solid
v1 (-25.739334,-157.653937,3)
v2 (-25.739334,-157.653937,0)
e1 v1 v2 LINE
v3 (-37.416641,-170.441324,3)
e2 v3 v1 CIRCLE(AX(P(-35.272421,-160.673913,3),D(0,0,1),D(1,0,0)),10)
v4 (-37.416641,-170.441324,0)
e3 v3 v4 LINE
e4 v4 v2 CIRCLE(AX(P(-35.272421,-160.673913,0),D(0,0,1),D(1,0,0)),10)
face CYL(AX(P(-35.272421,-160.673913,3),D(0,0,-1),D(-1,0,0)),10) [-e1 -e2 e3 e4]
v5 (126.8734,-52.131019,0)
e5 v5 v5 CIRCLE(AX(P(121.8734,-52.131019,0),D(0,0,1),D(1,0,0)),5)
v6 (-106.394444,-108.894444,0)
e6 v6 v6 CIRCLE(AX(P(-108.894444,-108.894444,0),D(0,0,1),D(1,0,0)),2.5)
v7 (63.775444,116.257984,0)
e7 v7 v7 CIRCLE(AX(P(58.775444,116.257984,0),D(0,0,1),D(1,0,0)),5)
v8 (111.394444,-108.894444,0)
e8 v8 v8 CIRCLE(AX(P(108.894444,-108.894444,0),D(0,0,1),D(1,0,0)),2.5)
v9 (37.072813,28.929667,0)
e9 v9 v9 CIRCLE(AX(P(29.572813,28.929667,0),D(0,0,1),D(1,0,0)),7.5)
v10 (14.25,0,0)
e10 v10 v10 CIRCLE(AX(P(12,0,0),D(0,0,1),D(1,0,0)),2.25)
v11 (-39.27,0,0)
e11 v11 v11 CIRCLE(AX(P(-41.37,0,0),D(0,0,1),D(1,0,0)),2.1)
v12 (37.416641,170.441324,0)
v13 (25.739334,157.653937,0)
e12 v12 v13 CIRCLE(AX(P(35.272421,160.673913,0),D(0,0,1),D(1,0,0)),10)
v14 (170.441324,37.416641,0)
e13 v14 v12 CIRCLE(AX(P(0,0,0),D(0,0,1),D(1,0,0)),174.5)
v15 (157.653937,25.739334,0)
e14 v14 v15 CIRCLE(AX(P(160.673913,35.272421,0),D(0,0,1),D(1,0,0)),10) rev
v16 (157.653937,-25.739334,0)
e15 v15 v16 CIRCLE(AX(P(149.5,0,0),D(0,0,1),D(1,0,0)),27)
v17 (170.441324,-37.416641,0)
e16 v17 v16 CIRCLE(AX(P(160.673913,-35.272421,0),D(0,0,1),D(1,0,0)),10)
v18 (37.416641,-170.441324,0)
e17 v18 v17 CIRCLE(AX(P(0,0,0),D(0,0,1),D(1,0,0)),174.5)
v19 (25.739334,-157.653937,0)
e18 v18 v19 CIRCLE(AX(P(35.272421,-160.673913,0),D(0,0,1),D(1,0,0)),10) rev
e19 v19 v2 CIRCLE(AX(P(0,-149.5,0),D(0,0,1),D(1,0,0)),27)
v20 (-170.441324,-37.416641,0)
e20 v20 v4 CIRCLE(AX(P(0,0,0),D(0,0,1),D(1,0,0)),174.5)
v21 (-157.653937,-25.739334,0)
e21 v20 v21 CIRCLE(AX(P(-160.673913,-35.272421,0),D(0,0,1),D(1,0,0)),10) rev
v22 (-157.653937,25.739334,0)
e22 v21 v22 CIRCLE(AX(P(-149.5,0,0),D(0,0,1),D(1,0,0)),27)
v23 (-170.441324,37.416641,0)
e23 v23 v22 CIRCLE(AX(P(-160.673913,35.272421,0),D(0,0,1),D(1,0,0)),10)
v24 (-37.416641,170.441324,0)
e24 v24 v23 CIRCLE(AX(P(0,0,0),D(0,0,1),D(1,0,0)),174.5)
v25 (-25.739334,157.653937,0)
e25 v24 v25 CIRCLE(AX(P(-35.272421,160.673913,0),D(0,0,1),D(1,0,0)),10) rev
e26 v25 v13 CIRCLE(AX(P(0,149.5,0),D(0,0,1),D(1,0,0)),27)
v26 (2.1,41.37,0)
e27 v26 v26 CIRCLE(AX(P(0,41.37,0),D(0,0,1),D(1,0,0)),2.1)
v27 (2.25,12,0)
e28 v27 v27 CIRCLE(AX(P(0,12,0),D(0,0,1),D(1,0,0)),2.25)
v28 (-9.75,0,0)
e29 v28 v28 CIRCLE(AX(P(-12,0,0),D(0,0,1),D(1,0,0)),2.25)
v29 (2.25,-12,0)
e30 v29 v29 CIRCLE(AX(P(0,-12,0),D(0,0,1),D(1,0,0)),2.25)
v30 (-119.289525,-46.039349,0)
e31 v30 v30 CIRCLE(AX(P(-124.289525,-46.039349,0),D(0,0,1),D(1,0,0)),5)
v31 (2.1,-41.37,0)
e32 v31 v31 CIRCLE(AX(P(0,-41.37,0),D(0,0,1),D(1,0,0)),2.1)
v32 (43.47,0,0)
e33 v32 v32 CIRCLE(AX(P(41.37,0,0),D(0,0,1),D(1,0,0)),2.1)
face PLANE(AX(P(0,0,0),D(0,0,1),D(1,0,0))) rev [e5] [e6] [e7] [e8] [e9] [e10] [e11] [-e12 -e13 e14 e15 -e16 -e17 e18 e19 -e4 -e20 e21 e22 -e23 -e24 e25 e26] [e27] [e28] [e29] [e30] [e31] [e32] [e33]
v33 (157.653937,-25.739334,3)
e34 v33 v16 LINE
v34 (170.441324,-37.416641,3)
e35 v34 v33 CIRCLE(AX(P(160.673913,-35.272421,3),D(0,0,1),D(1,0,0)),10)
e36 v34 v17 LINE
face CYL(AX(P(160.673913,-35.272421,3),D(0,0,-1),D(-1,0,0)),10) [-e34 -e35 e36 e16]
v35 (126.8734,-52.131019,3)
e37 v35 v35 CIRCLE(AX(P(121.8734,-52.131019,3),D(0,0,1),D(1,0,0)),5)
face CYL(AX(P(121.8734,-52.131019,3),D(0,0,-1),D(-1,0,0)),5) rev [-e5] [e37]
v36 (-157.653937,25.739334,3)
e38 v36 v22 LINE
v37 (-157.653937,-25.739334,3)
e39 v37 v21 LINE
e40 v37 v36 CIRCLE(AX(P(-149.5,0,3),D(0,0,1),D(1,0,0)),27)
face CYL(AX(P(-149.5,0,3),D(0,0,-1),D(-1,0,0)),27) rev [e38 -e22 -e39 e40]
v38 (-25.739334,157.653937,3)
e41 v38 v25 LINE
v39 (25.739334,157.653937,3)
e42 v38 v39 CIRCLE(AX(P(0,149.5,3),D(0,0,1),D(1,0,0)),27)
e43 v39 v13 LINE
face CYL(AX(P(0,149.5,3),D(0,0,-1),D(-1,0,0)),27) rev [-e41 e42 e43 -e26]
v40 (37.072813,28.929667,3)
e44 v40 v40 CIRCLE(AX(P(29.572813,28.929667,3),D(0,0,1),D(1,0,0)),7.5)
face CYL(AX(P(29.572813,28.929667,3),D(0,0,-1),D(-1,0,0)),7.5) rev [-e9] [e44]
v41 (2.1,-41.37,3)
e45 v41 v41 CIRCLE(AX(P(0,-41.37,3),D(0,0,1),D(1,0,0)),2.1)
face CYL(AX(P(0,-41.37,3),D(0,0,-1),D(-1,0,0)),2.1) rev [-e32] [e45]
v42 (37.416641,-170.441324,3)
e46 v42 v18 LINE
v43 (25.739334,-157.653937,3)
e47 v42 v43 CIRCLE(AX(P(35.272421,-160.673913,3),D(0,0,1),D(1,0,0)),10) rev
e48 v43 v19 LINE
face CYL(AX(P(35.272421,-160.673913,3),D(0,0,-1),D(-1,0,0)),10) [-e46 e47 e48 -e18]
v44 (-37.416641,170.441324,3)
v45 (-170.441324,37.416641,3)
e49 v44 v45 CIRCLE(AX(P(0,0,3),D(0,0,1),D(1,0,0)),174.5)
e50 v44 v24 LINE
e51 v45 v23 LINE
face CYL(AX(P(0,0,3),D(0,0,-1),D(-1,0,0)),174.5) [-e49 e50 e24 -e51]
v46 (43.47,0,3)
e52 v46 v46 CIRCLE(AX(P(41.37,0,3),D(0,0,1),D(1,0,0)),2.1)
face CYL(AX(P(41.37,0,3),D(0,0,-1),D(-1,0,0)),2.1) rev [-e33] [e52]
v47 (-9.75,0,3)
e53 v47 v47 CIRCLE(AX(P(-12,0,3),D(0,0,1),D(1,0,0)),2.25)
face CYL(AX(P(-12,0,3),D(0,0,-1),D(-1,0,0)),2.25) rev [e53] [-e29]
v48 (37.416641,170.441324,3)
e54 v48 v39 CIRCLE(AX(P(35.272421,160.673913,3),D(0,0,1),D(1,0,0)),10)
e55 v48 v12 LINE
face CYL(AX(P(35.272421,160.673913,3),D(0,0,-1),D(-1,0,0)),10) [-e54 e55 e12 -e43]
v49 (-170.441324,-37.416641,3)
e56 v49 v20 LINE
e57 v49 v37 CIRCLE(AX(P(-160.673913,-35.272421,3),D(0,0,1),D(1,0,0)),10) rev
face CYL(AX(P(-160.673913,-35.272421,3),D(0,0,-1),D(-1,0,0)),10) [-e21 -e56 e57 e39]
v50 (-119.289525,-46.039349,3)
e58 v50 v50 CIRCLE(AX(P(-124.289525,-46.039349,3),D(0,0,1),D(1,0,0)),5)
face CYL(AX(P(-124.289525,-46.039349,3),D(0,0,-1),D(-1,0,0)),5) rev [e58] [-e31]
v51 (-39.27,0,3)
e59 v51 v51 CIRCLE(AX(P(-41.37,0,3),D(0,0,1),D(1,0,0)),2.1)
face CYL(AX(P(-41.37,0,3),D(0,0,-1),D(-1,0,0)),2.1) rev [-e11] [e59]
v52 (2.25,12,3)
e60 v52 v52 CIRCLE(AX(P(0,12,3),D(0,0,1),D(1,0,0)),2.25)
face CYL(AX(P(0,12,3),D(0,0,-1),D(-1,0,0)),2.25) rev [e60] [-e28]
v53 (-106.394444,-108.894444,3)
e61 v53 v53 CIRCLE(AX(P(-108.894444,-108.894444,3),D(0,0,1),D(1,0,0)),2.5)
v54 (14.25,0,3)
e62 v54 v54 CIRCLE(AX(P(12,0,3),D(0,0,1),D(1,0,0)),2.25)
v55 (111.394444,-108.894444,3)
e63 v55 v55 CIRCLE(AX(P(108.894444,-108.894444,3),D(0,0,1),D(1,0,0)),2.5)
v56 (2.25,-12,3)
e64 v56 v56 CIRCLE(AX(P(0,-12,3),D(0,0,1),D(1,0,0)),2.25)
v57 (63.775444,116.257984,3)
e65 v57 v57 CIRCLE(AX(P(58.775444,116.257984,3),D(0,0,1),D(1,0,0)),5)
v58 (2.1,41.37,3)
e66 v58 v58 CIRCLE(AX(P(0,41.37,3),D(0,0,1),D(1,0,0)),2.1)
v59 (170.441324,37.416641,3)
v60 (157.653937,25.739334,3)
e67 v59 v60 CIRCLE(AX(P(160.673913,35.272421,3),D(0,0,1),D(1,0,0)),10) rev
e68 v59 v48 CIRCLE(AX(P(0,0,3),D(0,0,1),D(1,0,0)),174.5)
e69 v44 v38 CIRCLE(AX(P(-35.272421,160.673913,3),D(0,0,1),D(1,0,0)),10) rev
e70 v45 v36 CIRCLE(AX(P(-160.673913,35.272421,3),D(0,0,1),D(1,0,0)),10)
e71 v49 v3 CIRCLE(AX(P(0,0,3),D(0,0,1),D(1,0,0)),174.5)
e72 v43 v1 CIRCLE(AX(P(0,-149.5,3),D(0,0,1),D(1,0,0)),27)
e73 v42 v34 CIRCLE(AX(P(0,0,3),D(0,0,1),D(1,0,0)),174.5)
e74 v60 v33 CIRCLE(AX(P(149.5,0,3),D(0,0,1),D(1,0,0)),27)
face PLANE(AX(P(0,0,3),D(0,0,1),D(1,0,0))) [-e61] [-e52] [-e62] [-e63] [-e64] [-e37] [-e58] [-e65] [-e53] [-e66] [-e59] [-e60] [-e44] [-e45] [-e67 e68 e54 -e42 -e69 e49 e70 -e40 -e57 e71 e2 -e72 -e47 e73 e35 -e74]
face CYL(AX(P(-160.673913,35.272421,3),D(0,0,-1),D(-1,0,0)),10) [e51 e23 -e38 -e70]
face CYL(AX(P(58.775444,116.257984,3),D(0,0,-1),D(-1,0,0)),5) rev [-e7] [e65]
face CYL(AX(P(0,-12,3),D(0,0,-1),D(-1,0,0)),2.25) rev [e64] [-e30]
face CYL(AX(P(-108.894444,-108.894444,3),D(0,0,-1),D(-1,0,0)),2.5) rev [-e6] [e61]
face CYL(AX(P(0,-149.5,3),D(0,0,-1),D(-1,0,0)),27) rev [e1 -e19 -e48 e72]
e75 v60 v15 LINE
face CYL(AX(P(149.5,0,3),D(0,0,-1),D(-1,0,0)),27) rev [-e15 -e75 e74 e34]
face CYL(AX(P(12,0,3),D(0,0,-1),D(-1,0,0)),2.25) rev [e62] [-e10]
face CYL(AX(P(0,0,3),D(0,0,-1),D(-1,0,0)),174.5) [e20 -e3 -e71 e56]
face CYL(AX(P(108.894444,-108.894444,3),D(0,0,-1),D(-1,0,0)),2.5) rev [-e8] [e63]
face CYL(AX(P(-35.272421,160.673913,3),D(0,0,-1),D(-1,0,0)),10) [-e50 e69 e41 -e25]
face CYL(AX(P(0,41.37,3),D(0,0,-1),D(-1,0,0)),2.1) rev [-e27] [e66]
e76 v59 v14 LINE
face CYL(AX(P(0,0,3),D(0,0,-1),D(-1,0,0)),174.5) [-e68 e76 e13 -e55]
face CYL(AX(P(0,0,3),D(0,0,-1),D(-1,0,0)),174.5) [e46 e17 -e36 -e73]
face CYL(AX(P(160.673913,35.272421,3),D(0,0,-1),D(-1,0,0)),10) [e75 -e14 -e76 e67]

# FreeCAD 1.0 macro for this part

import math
import FreeCAD as App
import Part
import Sketcher

V = App.Vector
Q = App.Units.Quantity

doc = App.newDocument("Part")
body = doc.addObject("PartDesign::Body", "Body")

sketch1 = body.newObject("Sketcher::SketchObject", "Sketch")
sketch1.AttachmentSupport = (doc.getObject("XY_Plane"), [""])
sketch1.MapMode = "FlatFace"
sketch1.addGeometry(Part.ArcOfCircle(Part.Circle(V(-160.7, -35.3, 0), V(0, 0, 1), 10), math.radians(72), math.radians(192)), False)
sketch1.addGeometry(Part.ArcOfCircle(Part.Circle(V(0, 0, 0), V(0, 0, 1), 174.5), math.radians(-168), math.radians(-102)), False)
sketch1.addGeometry(Part.ArcOfCircle(Part.Circle(V(-35.3, -160.7, 0), V(0, 0, 1), 10), math.radians(-102), math.radians(18)), False)
sketch1.addGeometry(Part.ArcOfCircle(Part.Circle(V(0, -149.5, 0), V(0, 0, 1), 27), math.radians(-18), math.radians(198)), False)
sketch1.addGeometry(Part.ArcOfCircle(Part.Circle(V(35.3, -160.7, 0), V(0, 0, 1), 10), math.radians(162), math.radians(282)), False)
sketch1.addGeometry(Part.ArcOfCircle(Part.Circle(V(0, 0, 0), V(0, 0, 1), 174.5), math.radians(-78), math.radians(-12)), False)
sketch1.addGeometry(Part.ArcOfCircle(Part.Circle(V(160.7, -35.3, 0), V(0, 0, 1), 10), math.radians(-12), math.radians(108)), False)
sketch1.addGeometry(Part.ArcOfCircle(Part.Circle(V(149.5, 0, 0), V(0, 0, 1), 27), math.radians(72), math.radians(288)), False)
sketch1.addGeometry(Part.ArcOfCircle(Part.Circle(V(160.7, 35.3, 0), V(0, 0, 1), 10), math.radians(-108), math.radians(12)), False)
sketch1.addGeometry(Part.ArcOfCircle(Part.Circle(V(0, 0, 0), V(0, 0, 1), 174.5), math.radians(12), math.radians(78)), False)
sketch1.addGeometry(Part.ArcOfCircle(Part.Circle(V(35.3, 160.7, 0), V(0, 0, 1), 10), math.radians(78), math.radians(198)), False)
sketch1.addGeometry(Part.ArcOfCircle(Part.Circle(V(0, 149.5, 0), V(0, 0, 1), 27), math.radians(162), math.radians(378)), False)
sketch1.addGeometry(Part.ArcOfCircle(Part.Circle(V(-35.3, 160.7, 0), V(0, 0, 1), 10), math.radians(-18), math.radians(102)), False)
sketch1.addGeometry(Part.ArcOfCircle(Part.Circle(V(0, 0, 0), V(0, 0, 1), 174.5), math.radians(102), math.radians(168)), False)
sketch1.addGeometry(Part.ArcOfCircle(Part.Circle(V(-160.7, 35.3, 0), V(0, 0, 1), 10), math.radians(168), math.radians(288)), False)
sketch1.addGeometry(Part.ArcOfCircle(Part.Circle(V(-149.5, 0, 0), V(0, 0, 1), 27), math.radians(-108), math.radians(108)), False)
sketch1.addGeometry(Part.Circle(V(-108.9, -108.9, 0), V(0, 0, 1), 2.5), False)
sketch1.addGeometry(Part.Circle(V(-124.3, -46, 0), V(0, 0, 1), 5), False)
sketch1.addGeometry(Part.Circle(V(-41.4, 0, 0), V(0, 0, 1), 2.1), False)
sketch1.addGeometry(Part.Circle(V(-12, 0, 0), V(0, 0, 1), 2.2), False)
sketch1.addGeometry(Part.Circle(V(108.9, -108.9, 0), V(0, 0, 1), 2.5), False)
sketch1.addGeometry(Part.Circle(V(0, -41.4, 0), V(0, 0, 1), 2.1), False)
sketch1.addGeometry(Part.Circle(V(0, -12, 0), V(0, 0, 1), 2.2), False)
sketch1.addGeometry(Part.Circle(V(12, 0, 0), V(0, 0, 1), 2.2), False)
sketch1.addGeometry(Part.Circle(V(41.4, 0, 0), V(0, 0, 1), 2.1), False)
sketch1.addGeometry(Part.Circle(V(121.9, -52.1, 0), V(0, 0, 1), 5), False)
sketch1.addGeometry(Part.Circle(V(0, 12, 0), V(0, 0, 1), 2.2), False)
sketch1.addGeometry(Part.Circle(V(29.6, 28.9, 0), V(0, 0, 1), 7.5), False)
sketch1.addGeometry(Part.Circle(V(0, 41.4, 0), V(0, 0, 1), 2.1), False)
sketch1.addGeometry(Part.Circle(V(58.8, 116.3, 0), V(0, 0, 1), 5), False)
sketch1.addConstraint(Sketcher.Constraint("Tangent", 0, 2, 1, 1))
sketch1.addConstraint(Sketcher.Constraint("Tangent", 1, 2, 2, 1))
sketch1.addConstraint(Sketcher.Constraint("Tangent", 2, 2, 3, 2))
sketch1.addConstraint(Sketcher.Constraint("Tangent", 3, 1, 4, 1))
sketch1.addConstraint(Sketcher.Constraint("Tangent", 4, 2, 5, 1))
sketch1.addConstraint(Sketcher.Constraint("Tangent", 5, 2, 6, 1))
sketch1.addConstraint(Sketcher.Constraint("Tangent", 6, 2, 7, 2))
sketch1.addConstraint(Sketcher.Constraint("Tangent", 7, 1, 8, 1))
sketch1.addConstraint(Sketcher.Constraint("Tangent", 8, 2, 9, 1))
sketch1.addConstraint(Sketcher.Constraint("Tangent", 9, 2, 10, 1))
sketch1.addConstraint(Sketcher.Constraint("Tangent", 10, 2, 11, 2))
sketch1.addConstraint(Sketcher.Constraint("Tangent", 11, 1, 12, 1))
sketch1.addConstraint(Sketcher.Constraint("Tangent", 12, 2, 13, 1))
sketch1.addConstraint(Sketcher.Constraint("Tangent", 13, 2, 14, 1))
sketch1.addConstraint(Sketcher.Constraint("Tangent", 14, 2, 15, 2))
sketch1.addConstraint(Sketcher.Constraint("Tangent", 15, 1, 0, 1))
sketch1.addConstraint(Sketcher.Constraint("Coincident", 1, 3, -1, 1))
sketch1.addConstraint(Sketcher.Constraint("Coincident", 5, 3, -1, 1))
sketch1.addConstraint(Sketcher.Constraint("Coincident", 9, 3, -1, 1))
sketch1.addConstraint(Sketcher.Constraint("Coincident", 13, 3, -1, 1))
sketch1.addConstraint(Sketcher.Constraint("Equal", 0, 2))
sketch1.addConstraint(Sketcher.Constraint("Equal", 2, 4))
sketch1.addConstraint(Sketcher.Constraint("Equal", 1, 5))
sketch1.addConstraint(Sketcher.Constraint("Equal", 4, 6))
sketch1.addConstraint(Sketcher.Constraint("Equal", 3, 7))
sketch1.addConstraint(Sketcher.Constraint("Equal", 6, 8))
sketch1.addConstraint(Sketcher.Constraint("Equal", 5, 9))
sketch1.addConstraint(Sketcher.Constraint("Equal", 8, 10))
sketch1.addConstraint(Sketcher.Constraint("Equal", 7, 11))
sketch1.addConstraint(Sketcher.Constraint("Equal", 10, 12))
sketch1.addConstraint(Sketcher.Constraint("Equal", 9, 13))
sketch1.addConstraint(Sketcher.Constraint("Equal", 12, 14))
sketch1.addConstraint(Sketcher.Constraint("Equal", 11, 15))
sketch1.addConstraint(Sketcher.Constraint("Equal", 16, 20))
sketch1.addConstraint(Sketcher.Constraint("Equal", 18, 21))
sketch1.addConstraint(Sketcher.Constraint("Equal", 19, 22))
sketch1.addConstraint(Sketcher.Constraint("Equal", 22, 23))
sketch1.addConstraint(Sketcher.Constraint("Equal", 21, 24))
sketch1.addConstraint(Sketcher.Constraint("Equal", 17, 25))
sketch1.addConstraint(Sketcher.Constraint("Equal", 23, 26))
sketch1.addConstraint(Sketcher.Constraint("Equal", 24, 28))
sketch1.addConstraint(Sketcher.Constraint("Equal", 25, 29))
sketch1.addConstraint(Sketcher.Constraint("Symmetric", 3, 3, 11, 3, -1, 1))
sketch1.addConstraint(Sketcher.Constraint("Symmetric", 7, 3, 15, 3, -1, 1))
sketch1.addConstraint(Sketcher.Constraint("Symmetric", 19, 3, 23, 3, -1, 1))
sketch1.addConstraint(Sketcher.Constraint("Symmetric", 18, 3, 24, 3, -1, 1))
sketch1.addConstraint(Sketcher.Constraint("Symmetric", 22, 3, 26, 3, -1, 1))
sketch1.addConstraint(Sketcher.Constraint("Symmetric", 21, 3, 28, 3, -1, 1))
sketch1.addConstraint(Sketcher.Constraint("Symmetric", 16, 3, 20, 3, -2))
sketch1.addConstraint(Sketcher.Constraint("PointOnObject", 3, 3, -2))
sketch1.addConstraint(Sketcher.Constraint("PointOnObject", 7, 3, -1))
sketch1.addConstraint(Sketcher.Constraint("PointOnObject", 18, 3, -1))
sketch1.addConstraint(Sketcher.Constraint("PointOnObject", 19, 3, -1))
sketch1.addConstraint(Sketcher.Constraint("PointOnObject", 21, 3, -2))
sketch1.addConstraint(Sketcher.Constraint("PointOnObject", 22, 3, -2))
sketch1.addConstraint(Sketcher.Constraint("Diameter", 16, Q("5 mm")))
sketch1.addConstraint(Sketcher.Constraint("Diameter", 17, Q("10 mm")))
sketch1.addConstraint(Sketcher.Constraint("Diameter", 27, Q("15 mm")))
sketch1.addConstraint(Sketcher.Constraint("Radius", 0, Q("10 mm")))
sketch1.addConstraint(Sketcher.Constraint("Radius", 3, Q("27 mm")))
sketch1.addConstraint(Sketcher.Constraint("Diameter", 18, Q("4.2 mm")))
sketch1.addConstraint(Sketcher.Constraint("Diameter", 19, Q("4.5 mm")))
sketch1.addConstraint(Sketcher.Constraint("Radius", 1, Q("174.5 mm")))
sketch1.addConstraint(Sketcher.Constraint("DistanceX", 19, 3, -1, 1, Q("12 mm")))
sketch1.addConstraint(Sketcher.Constraint("DistanceY", 22, 3, -1, 1, Q("12 mm")))
sketch1.addConstraint(Sketcher.Constraint("DistanceY", 3, 3, -1, 1, Q("149.5 mm")))
sketch1.addConstraint(Sketcher.Constraint("DistanceX", -1, 1, 7, 3, Q("149.5 mm")))
sketch1.addConstraint(Sketcher.Constraint("DistanceX", 18, 3, -1, 1, Q("41.37 mm")))
sketch1.addConstraint(Sketcher.Constraint("DistanceY", 21, 3, -1, 1, Q("41.37 mm")))
sketch1.addConstraint(Sketcher.Constraint("DistanceX", -1, 1, 25, 3, Q("121.8734 mm")))
sketch1.addConstraint(Sketcher.Constraint("DistanceX", 0, 2, 17, 3, Q("46.151799 mm")))
sketch1.addConstraint(Sketcher.Constraint("DistanceY", 17, 3, -1, 1, Q("46.039349 mm")))
sketch1.addConstraint(Sketcher.Constraint("DistanceY", 25, 3, -1, 1, Q("52.131019 mm")))
sketch1.addConstraint(Sketcher.Constraint("DistanceX", 0, 3, 16, 3, Q("51.779469 mm")))
sketch1.addConstraint(Sketcher.Constraint("DistanceY", 2, 3, 16, 3, Q("51.779469 mm")))
sketch1.addConstraint(Sketcher.Constraint("DistanceY", 29, 3, 10, 3, Q("44.415929 mm")))
sketch1.addConstraint(Sketcher.Constraint("DistanceX", 27, 3, 29, 3, Q("29.202632 mm")))
sketch1.addConstraint(Sketcher.Constraint("DistanceX", 10, 2, 29, 3, Q("33.03611 mm")))
sketch1.addConstraint(Sketcher.Constraint("DistanceY", -1, 1, 27, 3, Q("28.929667 mm")))
pad1 = body.newObject("PartDesign::Pad", "Pad")
pad1.Profile = sketch1
pad1.Length = 3

doc.recompute()
